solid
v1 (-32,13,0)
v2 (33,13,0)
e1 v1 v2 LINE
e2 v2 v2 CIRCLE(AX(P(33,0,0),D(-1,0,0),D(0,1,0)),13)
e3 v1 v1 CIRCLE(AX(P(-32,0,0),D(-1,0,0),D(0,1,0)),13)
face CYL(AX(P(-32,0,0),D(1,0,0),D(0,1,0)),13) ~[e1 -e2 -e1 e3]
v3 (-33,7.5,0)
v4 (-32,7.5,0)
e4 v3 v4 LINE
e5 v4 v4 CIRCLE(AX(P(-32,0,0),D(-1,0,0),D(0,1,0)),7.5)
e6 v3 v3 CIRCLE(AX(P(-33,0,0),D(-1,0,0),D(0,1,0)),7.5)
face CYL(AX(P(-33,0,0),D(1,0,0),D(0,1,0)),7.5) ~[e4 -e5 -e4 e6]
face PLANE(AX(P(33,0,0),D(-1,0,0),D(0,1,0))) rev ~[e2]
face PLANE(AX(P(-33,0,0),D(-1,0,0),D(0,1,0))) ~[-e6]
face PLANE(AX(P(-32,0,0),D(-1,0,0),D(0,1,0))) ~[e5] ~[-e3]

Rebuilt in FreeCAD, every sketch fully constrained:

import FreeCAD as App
import Part
import Sketcher

V = App.Vector

doc = App.newDocument("Part")
body = doc.addObject("PartDesign::Body", "Body")

# Sketch on XY plane
sketch1 = body.newObject("Sketcher::SketchObject", "Sketch")
sketch1.AttachmentSupport = (doc.getObject("XY_Plane"), [""])
sketch1.MapMode = "FlatFace"
sketch1.addGeometry(Part.LineSegment(V(33, 13, 0), V(-32, 13, 0)), False)
sketch1.addGeometry(Part.LineSegment(V(-32, 13, 0), V(-32, 7.5, 0)), False)
sketch1.addGeometry(Part.LineSegment(V(-32, 7.5, 0), V(-33, 7.5, 0)), False)
sketch1.addGeometry(Part.LineSegment(V(-33, 7.5, 0), V(-33, 0, 0)), False)
sketch1.addGeometry(Part.LineSegment(V(-33, 0, 0), V(33, 0, 0)), False)
sketch1.addGeometry(Part.LineSegment(V(33, 0, 0), V(33, 13, 0)), False)
sketch1.addConstraint(Sketcher.Constraint("Coincident", 0, 2, 1, 1))
sketch1.addConstraint(Sketcher.Constraint("Coincident", 1, 2, 2, 1))
sketch1.addConstraint(Sketcher.Constraint("Coincident", 2, 2, 3, 1))
sketch1.addConstraint(Sketcher.Constraint("Coincident", 3, 2, 4, 1))
sketch1.addConstraint(Sketcher.Constraint("Coincident", 4, 2, 5, 1))
sketch1.addConstraint(Sketcher.Constraint("Coincident", 5, 2, 0, 1))
sketch1.addConstraint(Sketcher.Constraint("Horizontal", 0))
sketch1.addConstraint(Sketcher.Constraint("Vertical", 1))
sketch1.addConstraint(Sketcher.Constraint("Horizontal", 2))
sketch1.addConstraint(Sketcher.Constraint("Vertical", 3))
sketch1.addConstraint(Sketcher.Constraint("Horizontal", 4))
sketch1.addConstraint(Sketcher.Constraint("Vertical", 5))
sketch1.addConstraint(Sketcher.Constraint("Symmetric", 3, 2, 4, 2, -1, 1))
sketch1.addConstraint(Sketcher.Constraint("DistanceX", 0, 2, 0, 1, 65.0))
sketch1.addConstraint(Sketcher.Constraint("DistanceX", 2, 2, 2, 1, 1.0))
sketch1.addConstraint(Sketcher.Constraint("DistanceY", 5, 1, 5, 2, 13.0))
sketch1.addConstraint(Sketcher.Constraint("DistanceY", 1, 2, 1, 1, 5.5))
revolution = body.newObject("PartDesign::Revolution", "Revolution")
revolution.Profile = sketch1
revolution.ReferenceAxis = (sketch1, ["H_Axis"])
revolution.Angle = 360

doc.recompute()
